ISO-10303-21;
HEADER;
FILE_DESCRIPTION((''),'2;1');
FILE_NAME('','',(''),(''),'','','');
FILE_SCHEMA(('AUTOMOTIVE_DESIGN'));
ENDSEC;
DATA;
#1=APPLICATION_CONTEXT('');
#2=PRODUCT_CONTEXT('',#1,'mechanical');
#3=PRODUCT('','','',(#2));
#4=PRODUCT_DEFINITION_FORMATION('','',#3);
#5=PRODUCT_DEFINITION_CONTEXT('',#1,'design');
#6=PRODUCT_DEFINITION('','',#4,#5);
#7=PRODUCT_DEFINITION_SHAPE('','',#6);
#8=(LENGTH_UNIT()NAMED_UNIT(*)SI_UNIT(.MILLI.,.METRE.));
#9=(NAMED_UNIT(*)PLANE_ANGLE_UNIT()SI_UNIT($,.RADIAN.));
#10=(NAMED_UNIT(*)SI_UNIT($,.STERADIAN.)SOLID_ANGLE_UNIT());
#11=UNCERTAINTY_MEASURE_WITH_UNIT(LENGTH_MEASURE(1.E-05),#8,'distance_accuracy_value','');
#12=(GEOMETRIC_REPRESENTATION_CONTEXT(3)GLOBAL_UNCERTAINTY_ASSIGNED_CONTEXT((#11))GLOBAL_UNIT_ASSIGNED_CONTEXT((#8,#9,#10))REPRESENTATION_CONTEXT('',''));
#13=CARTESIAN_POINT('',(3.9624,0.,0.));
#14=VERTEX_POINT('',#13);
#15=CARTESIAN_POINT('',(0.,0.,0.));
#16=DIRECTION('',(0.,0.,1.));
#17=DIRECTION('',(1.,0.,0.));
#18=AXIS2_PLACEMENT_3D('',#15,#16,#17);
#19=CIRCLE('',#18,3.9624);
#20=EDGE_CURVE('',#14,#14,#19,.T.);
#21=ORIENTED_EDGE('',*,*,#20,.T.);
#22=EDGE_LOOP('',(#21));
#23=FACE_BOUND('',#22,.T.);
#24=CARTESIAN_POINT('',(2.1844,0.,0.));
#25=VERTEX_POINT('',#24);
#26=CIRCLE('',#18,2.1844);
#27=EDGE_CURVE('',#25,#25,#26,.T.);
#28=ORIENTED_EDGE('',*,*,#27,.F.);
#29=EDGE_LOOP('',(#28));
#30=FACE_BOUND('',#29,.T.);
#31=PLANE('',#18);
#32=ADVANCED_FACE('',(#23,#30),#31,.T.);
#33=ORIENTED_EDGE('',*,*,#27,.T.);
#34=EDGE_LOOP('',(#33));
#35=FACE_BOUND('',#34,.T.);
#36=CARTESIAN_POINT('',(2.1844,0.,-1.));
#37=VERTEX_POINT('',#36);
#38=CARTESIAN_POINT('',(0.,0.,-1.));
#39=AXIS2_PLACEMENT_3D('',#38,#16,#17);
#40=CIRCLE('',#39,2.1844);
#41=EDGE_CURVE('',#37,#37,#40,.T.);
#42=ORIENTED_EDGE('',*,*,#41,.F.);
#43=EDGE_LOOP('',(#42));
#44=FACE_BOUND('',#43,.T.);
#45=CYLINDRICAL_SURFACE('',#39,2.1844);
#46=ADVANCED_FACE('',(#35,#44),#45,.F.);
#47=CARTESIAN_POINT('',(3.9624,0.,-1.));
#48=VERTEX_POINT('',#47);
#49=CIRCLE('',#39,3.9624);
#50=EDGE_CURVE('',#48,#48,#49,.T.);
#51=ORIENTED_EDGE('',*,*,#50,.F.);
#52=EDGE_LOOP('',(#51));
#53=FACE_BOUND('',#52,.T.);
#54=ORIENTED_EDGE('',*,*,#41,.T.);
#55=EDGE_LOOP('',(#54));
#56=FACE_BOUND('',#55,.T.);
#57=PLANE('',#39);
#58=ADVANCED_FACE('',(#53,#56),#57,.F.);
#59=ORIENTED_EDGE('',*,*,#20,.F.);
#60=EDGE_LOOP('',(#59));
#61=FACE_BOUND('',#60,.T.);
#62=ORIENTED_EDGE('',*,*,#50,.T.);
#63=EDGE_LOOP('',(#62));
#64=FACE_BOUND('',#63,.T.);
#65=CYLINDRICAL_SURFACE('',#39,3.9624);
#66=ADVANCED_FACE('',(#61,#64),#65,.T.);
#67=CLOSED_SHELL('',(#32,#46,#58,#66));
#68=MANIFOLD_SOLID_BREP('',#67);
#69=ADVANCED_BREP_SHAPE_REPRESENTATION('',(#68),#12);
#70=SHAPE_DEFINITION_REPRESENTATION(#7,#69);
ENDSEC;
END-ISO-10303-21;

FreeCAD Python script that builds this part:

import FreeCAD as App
import Part
import Sketcher
from FreeCAD import Vector
Q = App.Units.Quantity

doc = App.newDocument("Part")
body = doc.addObject("PartDesign::Body", "Body")

# Sketch on XY plane
sketch1 = doc.addObject("Sketcher::SketchObject", "Sketch")
body.addObject(sketch1)
sketch1.AttachmentSupport = (doc.XY_Plane, [""])
sketch1.MapMode = "FlatFace"
sketch1.addGeometry([
    Part.Circle(Vector(0, 0, 0), Vector(0, 0, 1), 4),
    Part.Circle(Vector(0, 0, 0), Vector(0, 0, 1), 2.2),
], False)
sketch1.addConstraint([
    Sketcher.Constraint("Coincident", 0, 3, -1, 1),
    Sketcher.Constraint("Coincident", 1, 3, -1, 1),
    Sketcher.Constraint("Diameter", 0, Q("0.312 in")),
    Sketcher.Constraint("Diameter", 1, Q("0.172 in")),
])
pad1 = doc.addObject("PartDesign::Pad", "Pad")
body.addObject(pad1)
pad1.Profile = sketch1
pad1.Length = 1
pad1.Reversed = True

doc.recompute()
